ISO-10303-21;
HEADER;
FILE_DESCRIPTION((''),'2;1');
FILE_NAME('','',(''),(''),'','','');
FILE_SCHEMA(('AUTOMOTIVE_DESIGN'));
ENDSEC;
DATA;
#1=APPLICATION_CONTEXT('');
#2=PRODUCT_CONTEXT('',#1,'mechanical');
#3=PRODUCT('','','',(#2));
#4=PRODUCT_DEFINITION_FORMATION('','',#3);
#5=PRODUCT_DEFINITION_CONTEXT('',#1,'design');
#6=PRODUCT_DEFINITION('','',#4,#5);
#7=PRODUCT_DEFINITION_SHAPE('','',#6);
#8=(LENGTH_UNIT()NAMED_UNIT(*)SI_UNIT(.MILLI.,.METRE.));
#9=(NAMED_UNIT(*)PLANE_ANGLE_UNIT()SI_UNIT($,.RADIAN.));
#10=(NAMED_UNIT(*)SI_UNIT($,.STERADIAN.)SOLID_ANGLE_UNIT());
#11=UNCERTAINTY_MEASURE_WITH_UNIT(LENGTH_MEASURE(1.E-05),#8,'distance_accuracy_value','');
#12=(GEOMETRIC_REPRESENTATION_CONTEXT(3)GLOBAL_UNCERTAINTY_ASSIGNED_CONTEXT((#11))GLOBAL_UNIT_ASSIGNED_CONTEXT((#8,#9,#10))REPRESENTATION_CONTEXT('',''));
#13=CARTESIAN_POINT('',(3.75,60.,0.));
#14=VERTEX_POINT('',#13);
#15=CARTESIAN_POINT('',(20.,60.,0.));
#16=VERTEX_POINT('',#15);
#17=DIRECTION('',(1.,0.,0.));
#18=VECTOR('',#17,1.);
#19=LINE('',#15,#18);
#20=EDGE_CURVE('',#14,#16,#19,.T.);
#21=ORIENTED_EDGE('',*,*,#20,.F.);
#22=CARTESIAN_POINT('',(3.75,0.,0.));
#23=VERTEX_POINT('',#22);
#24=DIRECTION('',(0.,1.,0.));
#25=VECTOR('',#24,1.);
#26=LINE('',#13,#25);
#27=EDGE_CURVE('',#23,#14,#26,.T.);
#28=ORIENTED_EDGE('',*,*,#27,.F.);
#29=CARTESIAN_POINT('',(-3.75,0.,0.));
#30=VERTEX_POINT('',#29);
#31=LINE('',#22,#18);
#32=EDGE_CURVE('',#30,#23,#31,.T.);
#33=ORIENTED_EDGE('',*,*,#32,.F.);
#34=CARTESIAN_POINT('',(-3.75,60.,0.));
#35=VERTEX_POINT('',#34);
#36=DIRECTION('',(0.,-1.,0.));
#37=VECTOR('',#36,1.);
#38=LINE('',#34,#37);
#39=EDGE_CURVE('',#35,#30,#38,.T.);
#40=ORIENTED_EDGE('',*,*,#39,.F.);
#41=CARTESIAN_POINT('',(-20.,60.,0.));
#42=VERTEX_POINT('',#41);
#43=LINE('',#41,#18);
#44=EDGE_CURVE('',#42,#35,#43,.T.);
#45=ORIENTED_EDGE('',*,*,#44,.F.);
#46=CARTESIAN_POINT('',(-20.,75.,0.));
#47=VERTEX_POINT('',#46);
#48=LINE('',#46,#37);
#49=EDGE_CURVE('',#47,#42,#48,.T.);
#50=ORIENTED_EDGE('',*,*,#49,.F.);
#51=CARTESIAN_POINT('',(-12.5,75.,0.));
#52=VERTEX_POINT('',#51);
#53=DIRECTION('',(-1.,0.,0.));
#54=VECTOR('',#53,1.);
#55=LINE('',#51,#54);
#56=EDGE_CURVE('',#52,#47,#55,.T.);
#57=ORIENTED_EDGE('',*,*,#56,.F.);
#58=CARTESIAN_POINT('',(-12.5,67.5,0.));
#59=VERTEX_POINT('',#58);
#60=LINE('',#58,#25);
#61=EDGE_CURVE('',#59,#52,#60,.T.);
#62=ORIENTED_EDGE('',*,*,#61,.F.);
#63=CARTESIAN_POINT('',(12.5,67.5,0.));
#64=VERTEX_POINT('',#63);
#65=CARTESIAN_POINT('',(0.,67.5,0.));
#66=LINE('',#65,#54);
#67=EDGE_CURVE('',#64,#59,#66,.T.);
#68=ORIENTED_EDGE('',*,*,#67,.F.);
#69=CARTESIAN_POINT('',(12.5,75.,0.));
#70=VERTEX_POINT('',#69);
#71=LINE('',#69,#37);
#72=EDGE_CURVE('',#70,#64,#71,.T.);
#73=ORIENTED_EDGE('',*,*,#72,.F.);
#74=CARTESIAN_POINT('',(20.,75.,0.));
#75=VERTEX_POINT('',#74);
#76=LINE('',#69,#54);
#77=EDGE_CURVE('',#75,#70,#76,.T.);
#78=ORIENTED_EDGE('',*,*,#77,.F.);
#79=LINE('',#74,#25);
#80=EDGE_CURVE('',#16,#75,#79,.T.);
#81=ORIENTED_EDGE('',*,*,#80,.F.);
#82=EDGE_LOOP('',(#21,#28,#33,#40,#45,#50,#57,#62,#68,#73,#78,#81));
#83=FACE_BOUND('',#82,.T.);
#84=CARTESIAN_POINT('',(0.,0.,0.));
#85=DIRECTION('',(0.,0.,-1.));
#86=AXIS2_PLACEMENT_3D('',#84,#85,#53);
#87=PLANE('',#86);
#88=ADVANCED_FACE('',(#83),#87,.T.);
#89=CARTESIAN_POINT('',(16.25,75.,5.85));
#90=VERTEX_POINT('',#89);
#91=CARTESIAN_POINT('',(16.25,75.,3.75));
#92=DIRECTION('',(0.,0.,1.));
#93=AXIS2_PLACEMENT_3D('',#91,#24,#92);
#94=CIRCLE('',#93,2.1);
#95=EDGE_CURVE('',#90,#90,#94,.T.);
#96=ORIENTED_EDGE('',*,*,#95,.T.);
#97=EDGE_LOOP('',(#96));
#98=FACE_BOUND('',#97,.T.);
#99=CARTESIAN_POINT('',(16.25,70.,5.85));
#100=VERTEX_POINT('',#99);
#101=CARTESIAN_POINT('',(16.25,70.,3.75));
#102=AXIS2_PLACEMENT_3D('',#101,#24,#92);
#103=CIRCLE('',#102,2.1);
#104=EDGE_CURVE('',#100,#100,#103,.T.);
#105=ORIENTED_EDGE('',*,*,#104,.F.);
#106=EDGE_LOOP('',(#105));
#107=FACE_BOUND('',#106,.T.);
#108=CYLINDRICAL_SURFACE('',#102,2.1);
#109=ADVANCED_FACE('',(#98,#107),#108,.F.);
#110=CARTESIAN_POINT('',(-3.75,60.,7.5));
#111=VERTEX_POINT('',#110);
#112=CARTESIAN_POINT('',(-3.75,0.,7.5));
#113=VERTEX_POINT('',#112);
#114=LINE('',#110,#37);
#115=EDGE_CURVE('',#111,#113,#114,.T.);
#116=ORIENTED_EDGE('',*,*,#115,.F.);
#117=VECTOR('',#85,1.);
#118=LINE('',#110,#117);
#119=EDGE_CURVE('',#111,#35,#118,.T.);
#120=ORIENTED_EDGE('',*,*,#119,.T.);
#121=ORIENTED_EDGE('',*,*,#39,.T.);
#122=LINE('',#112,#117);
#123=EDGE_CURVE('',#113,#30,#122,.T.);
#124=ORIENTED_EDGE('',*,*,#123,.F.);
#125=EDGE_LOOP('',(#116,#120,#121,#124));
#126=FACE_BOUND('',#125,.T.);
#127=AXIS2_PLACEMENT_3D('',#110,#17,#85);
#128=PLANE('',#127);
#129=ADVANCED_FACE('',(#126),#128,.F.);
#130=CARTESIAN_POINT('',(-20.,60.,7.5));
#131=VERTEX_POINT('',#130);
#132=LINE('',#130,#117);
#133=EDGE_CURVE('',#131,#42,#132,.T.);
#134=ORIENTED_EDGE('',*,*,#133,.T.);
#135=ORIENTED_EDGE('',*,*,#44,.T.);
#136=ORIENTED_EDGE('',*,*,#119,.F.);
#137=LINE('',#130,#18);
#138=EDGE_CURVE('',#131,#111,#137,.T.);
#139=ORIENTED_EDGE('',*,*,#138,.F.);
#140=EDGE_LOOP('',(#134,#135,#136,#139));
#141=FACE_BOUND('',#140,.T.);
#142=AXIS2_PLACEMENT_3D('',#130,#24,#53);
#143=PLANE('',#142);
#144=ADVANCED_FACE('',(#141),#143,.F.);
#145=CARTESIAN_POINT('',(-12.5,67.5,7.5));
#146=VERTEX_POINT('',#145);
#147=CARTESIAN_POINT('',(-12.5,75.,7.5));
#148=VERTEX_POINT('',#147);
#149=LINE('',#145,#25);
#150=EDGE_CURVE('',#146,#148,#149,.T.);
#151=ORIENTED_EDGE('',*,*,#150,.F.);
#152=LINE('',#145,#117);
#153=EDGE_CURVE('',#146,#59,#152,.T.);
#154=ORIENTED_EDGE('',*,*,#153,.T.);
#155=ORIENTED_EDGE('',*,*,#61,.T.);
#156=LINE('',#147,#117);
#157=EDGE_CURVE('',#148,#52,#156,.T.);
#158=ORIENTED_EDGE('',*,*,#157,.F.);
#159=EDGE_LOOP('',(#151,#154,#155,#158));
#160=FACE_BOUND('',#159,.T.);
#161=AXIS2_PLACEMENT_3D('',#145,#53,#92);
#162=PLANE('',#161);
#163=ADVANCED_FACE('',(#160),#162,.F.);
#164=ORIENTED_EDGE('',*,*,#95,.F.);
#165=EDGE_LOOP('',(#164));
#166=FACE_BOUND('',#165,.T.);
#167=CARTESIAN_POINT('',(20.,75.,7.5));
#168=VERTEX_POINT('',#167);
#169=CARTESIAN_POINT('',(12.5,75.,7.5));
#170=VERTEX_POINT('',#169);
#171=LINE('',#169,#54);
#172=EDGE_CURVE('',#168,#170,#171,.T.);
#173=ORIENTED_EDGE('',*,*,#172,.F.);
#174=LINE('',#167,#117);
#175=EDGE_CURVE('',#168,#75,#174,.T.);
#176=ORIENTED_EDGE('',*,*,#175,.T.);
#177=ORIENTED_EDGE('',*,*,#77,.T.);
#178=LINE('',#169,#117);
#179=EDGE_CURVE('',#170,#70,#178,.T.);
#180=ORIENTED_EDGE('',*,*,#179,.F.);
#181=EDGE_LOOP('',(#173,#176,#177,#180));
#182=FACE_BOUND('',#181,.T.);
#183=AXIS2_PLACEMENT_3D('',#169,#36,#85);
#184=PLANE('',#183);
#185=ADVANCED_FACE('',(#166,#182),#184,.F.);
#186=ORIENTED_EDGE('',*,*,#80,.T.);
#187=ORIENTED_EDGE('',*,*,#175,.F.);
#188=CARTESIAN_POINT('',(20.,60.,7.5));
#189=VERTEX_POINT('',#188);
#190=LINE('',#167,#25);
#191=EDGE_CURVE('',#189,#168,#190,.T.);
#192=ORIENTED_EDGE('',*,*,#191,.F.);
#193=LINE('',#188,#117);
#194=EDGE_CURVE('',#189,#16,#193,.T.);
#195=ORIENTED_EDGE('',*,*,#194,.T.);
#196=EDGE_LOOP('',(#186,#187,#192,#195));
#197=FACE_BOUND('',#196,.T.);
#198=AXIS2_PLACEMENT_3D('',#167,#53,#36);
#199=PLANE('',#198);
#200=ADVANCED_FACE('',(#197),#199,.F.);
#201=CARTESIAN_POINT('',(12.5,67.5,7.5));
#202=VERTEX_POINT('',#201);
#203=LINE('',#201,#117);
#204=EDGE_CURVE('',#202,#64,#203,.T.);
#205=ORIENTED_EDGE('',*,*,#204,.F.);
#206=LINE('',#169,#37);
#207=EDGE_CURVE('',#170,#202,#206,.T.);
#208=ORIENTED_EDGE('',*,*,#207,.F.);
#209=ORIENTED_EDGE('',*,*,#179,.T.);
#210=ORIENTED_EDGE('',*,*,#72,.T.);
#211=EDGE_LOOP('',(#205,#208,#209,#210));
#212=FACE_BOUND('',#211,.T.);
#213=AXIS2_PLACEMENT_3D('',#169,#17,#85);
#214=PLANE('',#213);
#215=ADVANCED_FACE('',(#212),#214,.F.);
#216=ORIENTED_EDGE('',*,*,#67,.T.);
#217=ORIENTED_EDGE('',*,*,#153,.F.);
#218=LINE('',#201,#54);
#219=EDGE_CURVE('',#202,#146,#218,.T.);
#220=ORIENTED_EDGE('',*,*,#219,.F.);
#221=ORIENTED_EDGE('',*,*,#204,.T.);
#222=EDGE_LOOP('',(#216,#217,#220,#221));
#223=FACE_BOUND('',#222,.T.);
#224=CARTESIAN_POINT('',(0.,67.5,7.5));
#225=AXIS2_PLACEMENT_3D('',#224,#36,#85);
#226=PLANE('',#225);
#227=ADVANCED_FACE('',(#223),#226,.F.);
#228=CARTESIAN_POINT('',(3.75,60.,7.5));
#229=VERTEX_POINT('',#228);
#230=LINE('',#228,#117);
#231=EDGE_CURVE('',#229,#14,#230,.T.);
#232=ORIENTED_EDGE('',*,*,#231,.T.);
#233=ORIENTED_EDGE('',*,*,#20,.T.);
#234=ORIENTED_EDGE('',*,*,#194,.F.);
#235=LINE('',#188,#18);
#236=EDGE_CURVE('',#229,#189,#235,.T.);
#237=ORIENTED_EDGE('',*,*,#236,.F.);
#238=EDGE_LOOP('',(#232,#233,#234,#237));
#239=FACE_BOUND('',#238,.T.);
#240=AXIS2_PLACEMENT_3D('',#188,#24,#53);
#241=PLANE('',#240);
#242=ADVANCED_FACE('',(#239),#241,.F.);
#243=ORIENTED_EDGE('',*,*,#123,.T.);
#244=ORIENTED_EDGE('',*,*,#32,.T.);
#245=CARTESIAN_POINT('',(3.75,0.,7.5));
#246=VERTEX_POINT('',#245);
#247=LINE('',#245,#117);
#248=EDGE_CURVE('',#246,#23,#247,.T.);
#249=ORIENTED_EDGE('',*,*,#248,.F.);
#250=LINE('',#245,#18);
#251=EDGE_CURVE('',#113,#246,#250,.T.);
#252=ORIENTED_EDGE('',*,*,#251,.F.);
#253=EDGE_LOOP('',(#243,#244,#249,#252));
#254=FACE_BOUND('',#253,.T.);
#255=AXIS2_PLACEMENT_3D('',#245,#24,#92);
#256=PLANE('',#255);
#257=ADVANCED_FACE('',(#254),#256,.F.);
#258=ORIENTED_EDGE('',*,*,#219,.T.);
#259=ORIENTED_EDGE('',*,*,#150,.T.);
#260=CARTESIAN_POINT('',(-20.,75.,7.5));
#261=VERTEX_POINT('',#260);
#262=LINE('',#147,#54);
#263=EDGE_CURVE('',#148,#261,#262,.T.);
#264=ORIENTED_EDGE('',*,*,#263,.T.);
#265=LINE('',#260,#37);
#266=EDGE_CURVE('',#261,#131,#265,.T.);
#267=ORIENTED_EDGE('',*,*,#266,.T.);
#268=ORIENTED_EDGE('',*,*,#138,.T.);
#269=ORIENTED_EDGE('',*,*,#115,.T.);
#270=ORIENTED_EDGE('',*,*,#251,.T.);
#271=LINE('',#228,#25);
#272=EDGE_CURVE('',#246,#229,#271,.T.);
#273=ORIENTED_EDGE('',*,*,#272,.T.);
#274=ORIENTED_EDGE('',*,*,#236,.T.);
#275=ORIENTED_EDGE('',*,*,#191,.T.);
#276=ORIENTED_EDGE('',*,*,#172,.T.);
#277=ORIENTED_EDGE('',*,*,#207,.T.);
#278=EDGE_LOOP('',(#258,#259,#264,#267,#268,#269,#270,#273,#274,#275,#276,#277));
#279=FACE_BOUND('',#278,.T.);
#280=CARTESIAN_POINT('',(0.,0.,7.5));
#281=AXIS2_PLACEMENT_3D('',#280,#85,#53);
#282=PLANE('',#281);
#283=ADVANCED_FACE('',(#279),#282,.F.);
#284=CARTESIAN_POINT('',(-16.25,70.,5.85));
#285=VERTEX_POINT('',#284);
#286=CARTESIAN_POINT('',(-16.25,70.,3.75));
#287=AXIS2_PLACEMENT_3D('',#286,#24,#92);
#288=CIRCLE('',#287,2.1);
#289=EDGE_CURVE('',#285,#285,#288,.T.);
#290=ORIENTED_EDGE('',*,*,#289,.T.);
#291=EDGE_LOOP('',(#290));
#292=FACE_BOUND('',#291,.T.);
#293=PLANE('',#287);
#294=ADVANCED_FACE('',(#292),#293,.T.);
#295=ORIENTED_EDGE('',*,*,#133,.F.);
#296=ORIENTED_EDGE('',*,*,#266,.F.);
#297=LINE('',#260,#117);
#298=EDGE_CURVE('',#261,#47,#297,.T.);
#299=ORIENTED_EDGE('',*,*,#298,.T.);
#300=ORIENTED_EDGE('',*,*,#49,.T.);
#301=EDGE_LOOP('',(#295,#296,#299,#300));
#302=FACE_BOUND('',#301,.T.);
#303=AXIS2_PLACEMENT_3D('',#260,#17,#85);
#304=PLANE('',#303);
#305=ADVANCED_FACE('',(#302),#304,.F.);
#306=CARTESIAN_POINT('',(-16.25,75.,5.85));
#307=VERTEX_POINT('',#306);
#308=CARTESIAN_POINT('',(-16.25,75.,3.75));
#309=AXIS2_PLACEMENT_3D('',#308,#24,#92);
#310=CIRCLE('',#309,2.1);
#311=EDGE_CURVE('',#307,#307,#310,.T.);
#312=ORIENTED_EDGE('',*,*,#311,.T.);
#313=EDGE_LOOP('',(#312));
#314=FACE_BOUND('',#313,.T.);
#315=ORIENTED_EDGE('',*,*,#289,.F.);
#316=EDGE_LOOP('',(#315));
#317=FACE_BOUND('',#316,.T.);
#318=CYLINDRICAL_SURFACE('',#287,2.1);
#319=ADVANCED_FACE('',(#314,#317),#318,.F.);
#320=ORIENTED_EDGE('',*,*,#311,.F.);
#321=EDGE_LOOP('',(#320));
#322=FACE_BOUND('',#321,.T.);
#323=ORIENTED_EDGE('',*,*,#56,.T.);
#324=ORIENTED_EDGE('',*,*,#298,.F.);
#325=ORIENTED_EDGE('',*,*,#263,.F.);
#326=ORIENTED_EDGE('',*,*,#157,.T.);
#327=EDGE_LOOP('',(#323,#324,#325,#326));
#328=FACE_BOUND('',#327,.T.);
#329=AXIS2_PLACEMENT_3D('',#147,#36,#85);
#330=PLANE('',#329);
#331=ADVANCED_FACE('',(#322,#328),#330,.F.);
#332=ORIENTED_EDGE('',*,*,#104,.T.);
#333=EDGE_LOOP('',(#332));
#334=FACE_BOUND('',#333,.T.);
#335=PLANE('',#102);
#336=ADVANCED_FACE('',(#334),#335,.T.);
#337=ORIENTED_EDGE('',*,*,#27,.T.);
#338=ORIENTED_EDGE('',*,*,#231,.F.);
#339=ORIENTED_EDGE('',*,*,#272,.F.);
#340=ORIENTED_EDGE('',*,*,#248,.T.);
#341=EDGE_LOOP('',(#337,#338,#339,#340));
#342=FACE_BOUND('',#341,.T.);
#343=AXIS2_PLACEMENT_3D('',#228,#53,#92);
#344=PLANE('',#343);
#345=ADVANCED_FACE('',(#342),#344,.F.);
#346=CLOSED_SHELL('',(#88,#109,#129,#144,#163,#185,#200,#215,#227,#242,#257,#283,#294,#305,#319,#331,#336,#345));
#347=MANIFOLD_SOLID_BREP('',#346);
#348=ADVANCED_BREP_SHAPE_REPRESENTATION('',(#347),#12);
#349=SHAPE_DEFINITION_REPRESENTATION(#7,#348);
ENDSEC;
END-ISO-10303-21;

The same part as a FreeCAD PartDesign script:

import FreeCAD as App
import Part
import Sketcher
from FreeCAD import Vector

doc = App.newDocument("Part")
body = doc.addObject("PartDesign::Body", "Body")

sketch1 = body.newObject("Sketcher::SketchObject", "Sketch")
sketch1.AttachmentSupport = (doc.getObject("XY_Plane"), [""])
sketch1.MapMode = "FlatFace"
sketch1.addGeometry([
    Part.LineSegment(Vector(20, 75, 0), Vector(12, 75, 0)),
    Part.LineSegment(Vector(12, 75, 0), Vector(12, 68, 0)),
    Part.LineSegment(Vector(12, 68, 0), Vector(-12, 68, 0)),
    Part.LineSegment(Vector(-12, 68, 0), Vector(-12, 75, 0)),
    Part.LineSegment(Vector(-12, 75, 0), Vector(-20, 75, 0)),
    Part.LineSegment(Vector(-20, 75, 0), Vector(-20, 60, 0)),
    Part.LineSegment(Vector(-20, 60, 0), Vector(-4, 60, 0)),
    Part.LineSegment(Vector(-4, 60, 0), Vector(-4, 0, 0)),
    Part.LineSegment(Vector(-4, 0, 0), Vector(4, 0, 0)),
    Part.LineSegment(Vector(4, 0, 0), Vector(4, 60, 0)),
    Part.LineSegment(Vector(4, 60, 0), Vector(20, 60, 0)),
    Part.LineSegment(Vector(20, 60, 0), Vector(20, 75, 0)),
], False)
sketch1.addConstraint([
    Sketcher.Constraint("Coincident", 0, 2, 1, 1),
    Sketcher.Constraint("Coincident", 1, 2, 2, 1),
    Sketcher.Constraint("Coincident", 2, 2, 3, 1),
    Sketcher.Constraint("Coincident", 3, 2, 4, 1),
    Sketcher.Constraint("Coincident", 4, 2, 5, 1),
    Sketcher.Constraint("Coincident", 5, 2, 6, 1),
    Sketcher.Constraint("Coincident", 6, 2, 7, 1),
    Sketcher.Constraint("Coincident", 7, 2, 8, 1),
    Sketcher.Constraint("Coincident", 8, 2, 9, 1),
    Sketcher.Constraint("Coincident", 9, 2, 10, 1),
    Sketcher.Constraint("Coincident", 10, 2, 11, 1),
    Sketcher.Constraint("Coincident", 11, 2, 0, 1),
    Sketcher.Constraint("Horizontal", 0),
    Sketcher.Constraint("Vertical", 1),
    Sketcher.Constraint("Horizontal", 2),
    Sketcher.Constraint("Vertical", 3),
    Sketcher.Constraint("Horizontal", 4),
    Sketcher.Constraint("Vertical", 5),
    Sketcher.Constraint("Horizontal", 6),
    Sketcher.Constraint("Vertical", 7),
    Sketcher.Constraint("Horizontal", 8),
    Sketcher.Constraint("Vertical", 9),
    Sketcher.Constraint("Horizontal", 10),
    Sketcher.Constraint("Vertical", 11),
    Sketcher.Constraint("Symmetric", 7, 2, 8, 2, -1, 1),
    Sketcher.Constraint("Symmetric", 0, 2, 3, 2, -2),
    Sketcher.Constraint("Symmetric", 5, 2, 10, 2, -2),
    Sketcher.Constraint("Equal", 4, 8),
    Sketcher.Constraint("Equal", 8, 1),
    Sketcher.Constraint("DistanceX", 2, 2, 2, 1, 25.0),
    Sketcher.Constraint("DistanceY", 5, 2, 5, 1, 15.0),
    Sketcher.Constraint("DistanceY", 7, 2, 7, 1, 60.0),
    Sketcher.Constraint("DistanceX", 0, 2, 0, 1, 7.5),
])
pad1 = body.newObject("PartDesign::Pad", "Pad")
pad1.Profile = sketch1
pad1.Length = 7.5

sketch2 = body.newObject("Sketcher::SketchObject", "Sketch001")
sketch2.AttachmentSupport = (doc.getObject("XZ_Plane"), [""])
sketch2.MapMode = "FlatFace"
sketch2.AttachmentOffset = App.Placement(Vector(0, 0, -75), App.Rotation())
sketch2.addGeometry([
    Part.Circle(Vector(-16.2, 3.8, 0), Vector(0, 0, 1), 2.1),
    Part.Circle(Vector(16.2, 3.8, 0), Vector(0, 0, 1), 2.1),
], False)
sketch2.addConstraint([
    Sketcher.Constraint("Equal", 0, 1),
    Sketcher.Constraint("Symmetric", 0, 3, 1, 3, -2),
    Sketcher.Constraint("Diameter", 0, 4.2),
    Sketcher.Constraint("DistanceX", 0, 3, 1, 3, 32.5),
    Sketcher.Constraint("DistanceY", -1, 1, 0, 3, 3.75),
])
pocket1 = body.newObject("PartDesign::Pocket", "Pocket")
pocket1.Profile = sketch2
pocket1.Length = 5
pocket1.Reversed = True

doc.recompute()
